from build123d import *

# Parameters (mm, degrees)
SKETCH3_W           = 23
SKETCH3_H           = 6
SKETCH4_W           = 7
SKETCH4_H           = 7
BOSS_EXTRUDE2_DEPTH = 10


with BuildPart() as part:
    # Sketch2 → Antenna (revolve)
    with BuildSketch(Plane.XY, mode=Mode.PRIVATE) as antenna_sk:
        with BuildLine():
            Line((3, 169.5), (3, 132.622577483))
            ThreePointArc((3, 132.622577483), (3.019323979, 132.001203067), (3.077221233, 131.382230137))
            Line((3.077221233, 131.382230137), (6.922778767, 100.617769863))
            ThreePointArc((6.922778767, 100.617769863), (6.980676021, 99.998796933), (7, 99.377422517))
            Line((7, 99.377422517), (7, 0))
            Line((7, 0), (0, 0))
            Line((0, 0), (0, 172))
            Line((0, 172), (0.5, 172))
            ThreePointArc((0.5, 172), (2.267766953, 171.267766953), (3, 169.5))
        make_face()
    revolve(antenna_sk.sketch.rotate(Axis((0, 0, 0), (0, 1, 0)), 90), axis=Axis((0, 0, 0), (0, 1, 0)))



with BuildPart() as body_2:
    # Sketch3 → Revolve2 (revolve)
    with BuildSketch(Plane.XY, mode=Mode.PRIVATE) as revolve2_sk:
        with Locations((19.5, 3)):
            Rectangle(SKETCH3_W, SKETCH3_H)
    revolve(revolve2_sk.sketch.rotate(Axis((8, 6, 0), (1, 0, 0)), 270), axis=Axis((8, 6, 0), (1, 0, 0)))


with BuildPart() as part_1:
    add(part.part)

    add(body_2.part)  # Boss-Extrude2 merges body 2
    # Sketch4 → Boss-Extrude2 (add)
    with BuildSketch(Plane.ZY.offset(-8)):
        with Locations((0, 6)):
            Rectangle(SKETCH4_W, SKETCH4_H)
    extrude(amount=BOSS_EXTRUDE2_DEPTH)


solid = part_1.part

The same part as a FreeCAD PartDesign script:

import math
import FreeCAD as App
import Part
import Sketcher

doc = App.newDocument("Part")
params = doc.addObject("Spreadsheet::Sheet", "Params")
for row, (alias, value) in enumerate([
    ("sketch1_radius", "10 mm"),
    ("sketch1_radius2", "2.5 mm"),
    ("sketch1_width", "7 mm"),
    ("sketch1_height", "172 mm"),
    ("sketch1_width2", "0.5 mm"),
    ("revolution_angle", "360 deg"),
    ("sketch2_width", "23 mm"),
    ("sketch2_height", "6 mm"),
    ("revolution2_angle", "360 deg"),
    ("sketch3_width", "7 mm"),
    ("pad1_length", "10 mm"),
], start=1):
    params.set(f"A{row}", alias)
    params.set(f"B{row}", "=" + value)
    params.setAlias(f"B{row}", alias)

body = doc.addObject("PartDesign::Body", "Body")

# Sketch on XY plane
sketch1 = body.newObject("Sketcher::SketchObject", "Sketch")
sketch1.AttachmentSupport = (doc.getObject("XY_Plane"), [""])
sketch1.MapMode = "FlatFace"
sketch1.addGeometry(Part.LineSegment(App.Vector(3, 132.6, 0), App.Vector(3, 169.5, 0)), False)
sketch1.addGeometry(Part.ArcOfCircle(Part.Circle(App.Vector(0.5, 169.5, 0), App.Vector(0, 0, 1), 2.5), math.radians(0), math.radians(90)), False)
sketch1.addGeometry(Part.LineSegment(App.Vector(0.5, 172, 0), App.Vector(0, 172, 0)), False)
sketch1.addGeometry(Part.LineSegment(App.Vector(0, 172, 0), App.Vector(0, 0, 0)), False)
sketch1.addGeometry(Part.LineSegment(App.Vector(0, 0, 0), App.Vector(7, 0, 0)), False)
sketch1.addGeometry(Part.LineSegment(App.Vector(7, 0, 0), App.Vector(7, 99.4, 0)), False)
sketch1.addGeometry(Part.ArcOfCircle(Part.Circle(App.Vector(-3, 99.4, 0), App.Vector(0, 0, 1), 10), math.radians(0), math.radians(7.13)), False)
sketch1.addGeometry(Part.LineSegment(App.Vector(6.9, 100.6, 0), App.Vector(3.1, 131.4, 0)), False)
sketch1.addGeometry(Part.ArcOfCircle(Part.Circle(App.Vector(13, 132.6, 0), App.Vector(0, 0, 1), 10), math.radians(180), math.radians(187.13)), False)
sketch1.addConstraint(Sketcher.Constraint("Tangent", 0, 2, 1, 1))
sketch1.addConstraint(Sketcher.Constraint("Tangent", 1, 2, 2, 1))
sketch1.addConstraint(Sketcher.Constraint("Coincident", 2, 2, 3, 1))
sketch1.addConstraint(Sketcher.Constraint("Coincident", 3, 2, 4, 1))
sketch1.addConstraint(Sketcher.Constraint("Coincident", 4, 2, 5, 1))
sketch1.addConstraint(Sketcher.Constraint("Tangent", 5, 2, 6, 1))
sketch1.addConstraint(Sketcher.Constraint("Tangent", 6, 2, 7, 1))
sketch1.addConstraint(Sketcher.Constraint("Tangent", 7, 2, 8, 2))
sketch1.addConstraint(Sketcher.Constraint("Tangent", 8, 1, 0, 1))
sketch1.addConstraint(Sketcher.Constraint("Vertical", 0))
sketch1.addConstraint(Sketcher.Constraint("Horizontal", 2))
sketch1.addConstraint(Sketcher.Constraint("Vertical", 3))
sketch1.addConstraint(Sketcher.Constraint("Horizontal", 4))
sketch1.addConstraint(Sketcher.Constraint("Vertical", 5))
sketch1.addConstraint(Sketcher.Constraint("Coincident", 3, 2, -1, 1))
sketch1.addConstraint(Sketcher.Constraint("Equal", 6, 8))
sketch1.addConstraint(Sketcher.Constraint("Radius", 6, 10.0))
sketch1.addConstraint(Sketcher.Constraint("Radius", 1, 2.5))
sketch1.addConstraint(Sketcher.Constraint("DistanceX", 4, 1, 4, 2, 7.0))
sketch1.addConstraint(Sketcher.Constraint("DistanceY", 3, 2, 3, 1, 172.0))
sketch1.addConstraint(Sketcher.Constraint("DistanceX", 2, 2, 2, 1, 0.5))
sketch1.addConstraint(Sketcher.Constraint("DistanceY", 0, 1, 0, 2, 36.877423))
sketch1.addConstraint(Sketcher.Constraint("DistanceY", 5, 1, 5, 2, 99.377423))
sketch1.setExpression("Constraints[16]", "Params.sketch1_radius")
sketch1.setExpression("Constraints[17]", "Params.sketch1_radius2")
sketch1.setExpression("Constraints[18]", "Params.sketch1_width")
sketch1.setExpression("Constraints[19]", "Params.sketch1_height")
sketch1.setExpression("Constraints[20]", "Params.sketch1_width2")
revolution = body.newObject("PartDesign::Revolution", "Revolution")
revolution.Profile = sketch1
revolution.ReferenceAxis = (sketch1, ["V_Axis"])
revolution.setExpression("Angle", "Params.revolution_angle")
body2 = doc.addObject("PartDesign::Body", "Body001")

# Sketch on XY plane
sketch2 = body2.newObject("Sketcher::SketchObject", "Sketch001")
sketch2.AttachmentSupport = (doc.getObject("XY_Plane001"), [""])
sketch2.MapMode = "FlatFace"
sketch2.addGeometry(Part.LineSegment(App.Vector(8, 6, 0), App.Vector(8, 0, 0)), False)
sketch2.addGeometry(Part.LineSegment(App.Vector(8, 0, 0), App.Vector(31, 0, 0)), False)
sketch2.addGeometry(Part.LineSegment(App.Vector(31, 0, 0), App.Vector(31, 6, 0)), False)
sketch2.addGeometry(Part.LineSegment(App.Vector(31, 6, 0), App.Vector(8, 6, 0)), False)
sketch2.addGeometry(Part.LineSegment(App.Vector(8, 6, 0), App.Vector(31, 6, 0)), True)  # axis
sketch2.addConstraint(Sketcher.Constraint("Coincident", 0, 2, 1, 1))
sketch2.addConstraint(Sketcher.Constraint("Coincident", 1, 2, 2, 1))
sketch2.addConstraint(Sketcher.Constraint("Coincident", 2, 2, 3, 1))
sketch2.addConstraint(Sketcher.Constraint("Coincident", 3, 2, 0, 1))
sketch2.addConstraint(Sketcher.Constraint("Vertical", 0))
sketch2.addConstraint(Sketcher.Constraint("Horizontal", 1))
sketch2.addConstraint(Sketcher.Constraint("Vertical", 2))
sketch2.addConstraint(Sketcher.Constraint("Horizontal", 3))
sketch2.addConstraint(Sketcher.Constraint("Horizontal", 4))
sketch2.addConstraint(Sketcher.Constraint("Coincident", 4, 1, 3, 2))
sketch2.addConstraint(Sketcher.Constraint("PointOnObject", 0, 2, -1))
sketch2.addConstraint(Sketcher.Constraint("Vertical", 1, 2, 4, 2))
sketch2.addConstraint(Sketcher.Constraint("DistanceX", 1, 1, 1, 2, 23.0))
sketch2.addConstraint(Sketcher.Constraint("DistanceY", 0, 2, 0, 1, 6.0))
sketch2.addConstraint(Sketcher.Constraint("DistanceX", -1, 1, 0, 2, 8.0))
sketch2.setExpression("Constraints[12]", "Params.sketch2_width")
sketch2.setExpression("Constraints[13]", "Params.sketch2_height")
revolution2 = body2.newObject("PartDesign::Revolution", "Revolution001")
revolution2.Profile = sketch2
revolution2.ReferenceAxis = (sketch2, ["Axis0"])
revolution2.setExpression("Angle", "Params.revolution2_angle")
body.AllowCompound = True
doc.recompute()

boolean = body.newObject("PartDesign::Boolean", "Boolean")
boolean.Type = "Fuse"
boolean.addObjects([body2])

# Sketch on YZ plane
sketch3 = body.newObject("Sketcher::SketchObject", "Sketch002")
sketch3.AttachmentSupport = (doc.getObject("YZ_Plane"), [""])
sketch3.MapMode = "FlatFace"
sketch3.AttachmentOffset = App.Placement(App.Vector(0, 0, 8), App.Rotation())
sketch3.addGeometry(Part.LineSegment(App.Vector(10, -4, 0), App.Vector(2, -4, 0)), False)
sketch3.addGeometry(Part.LineSegment(App.Vector(2, -4, 0), App.Vector(2, 4, 0)), False)
sketch3.addGeometry(Part.LineSegment(App.Vector(2, 4, 0), App.Vector(10, 4, 0)), False)
sketch3.addGeometry(Part.LineSegment(App.Vector(10, 4, 0), App.Vector(10, -4, 0)), False)
sketch3.addConstraint(Sketcher.Constraint("Coincident", 0, 2, 1, 1))
sketch3.addConstraint(Sketcher.Constraint("Coincident", 1, 2, 2, 1))
sketch3.addConstraint(Sketcher.Constraint("Coincident", 2, 2, 3, 1))
sketch3.addConstraint(Sketcher.Constraint("Coincident", 3, 2, 0, 1))
sketch3.addConstraint(Sketcher.Constraint("Horizontal", 0))
sketch3.addConstraint(Sketcher.Constraint("Vertical", 1))
sketch3.addConstraint(Sketcher.Constraint("Horizontal", 2))
sketch3.addConstraint(Sketcher.Constraint("Vertical", 3))
sketch3.addConstraint(Sketcher.Constraint("Equal", 2, 1))
sketch3.addConstraint(Sketcher.Constraint("DistanceX", 0, 2, 0, 1, 7.0))
sketch3.addConstraint(Sketcher.Constraint("DistanceX", -1, 1, 0, 2, 2.5))
sketch3.addConstraint(Sketcher.Constraint("DistanceY", 0, 2, -1, 1, 3.5))
sketch3.setExpression("Constraints[9]", "Params.sketch3_width")
pad1 = body.newObject("PartDesign::Pad", "Pad")
pad1.Profile = sketch3
pad1.setExpression("Length", "Params.pad1_length")
pad1.Reversed = True

doc.recompute()
